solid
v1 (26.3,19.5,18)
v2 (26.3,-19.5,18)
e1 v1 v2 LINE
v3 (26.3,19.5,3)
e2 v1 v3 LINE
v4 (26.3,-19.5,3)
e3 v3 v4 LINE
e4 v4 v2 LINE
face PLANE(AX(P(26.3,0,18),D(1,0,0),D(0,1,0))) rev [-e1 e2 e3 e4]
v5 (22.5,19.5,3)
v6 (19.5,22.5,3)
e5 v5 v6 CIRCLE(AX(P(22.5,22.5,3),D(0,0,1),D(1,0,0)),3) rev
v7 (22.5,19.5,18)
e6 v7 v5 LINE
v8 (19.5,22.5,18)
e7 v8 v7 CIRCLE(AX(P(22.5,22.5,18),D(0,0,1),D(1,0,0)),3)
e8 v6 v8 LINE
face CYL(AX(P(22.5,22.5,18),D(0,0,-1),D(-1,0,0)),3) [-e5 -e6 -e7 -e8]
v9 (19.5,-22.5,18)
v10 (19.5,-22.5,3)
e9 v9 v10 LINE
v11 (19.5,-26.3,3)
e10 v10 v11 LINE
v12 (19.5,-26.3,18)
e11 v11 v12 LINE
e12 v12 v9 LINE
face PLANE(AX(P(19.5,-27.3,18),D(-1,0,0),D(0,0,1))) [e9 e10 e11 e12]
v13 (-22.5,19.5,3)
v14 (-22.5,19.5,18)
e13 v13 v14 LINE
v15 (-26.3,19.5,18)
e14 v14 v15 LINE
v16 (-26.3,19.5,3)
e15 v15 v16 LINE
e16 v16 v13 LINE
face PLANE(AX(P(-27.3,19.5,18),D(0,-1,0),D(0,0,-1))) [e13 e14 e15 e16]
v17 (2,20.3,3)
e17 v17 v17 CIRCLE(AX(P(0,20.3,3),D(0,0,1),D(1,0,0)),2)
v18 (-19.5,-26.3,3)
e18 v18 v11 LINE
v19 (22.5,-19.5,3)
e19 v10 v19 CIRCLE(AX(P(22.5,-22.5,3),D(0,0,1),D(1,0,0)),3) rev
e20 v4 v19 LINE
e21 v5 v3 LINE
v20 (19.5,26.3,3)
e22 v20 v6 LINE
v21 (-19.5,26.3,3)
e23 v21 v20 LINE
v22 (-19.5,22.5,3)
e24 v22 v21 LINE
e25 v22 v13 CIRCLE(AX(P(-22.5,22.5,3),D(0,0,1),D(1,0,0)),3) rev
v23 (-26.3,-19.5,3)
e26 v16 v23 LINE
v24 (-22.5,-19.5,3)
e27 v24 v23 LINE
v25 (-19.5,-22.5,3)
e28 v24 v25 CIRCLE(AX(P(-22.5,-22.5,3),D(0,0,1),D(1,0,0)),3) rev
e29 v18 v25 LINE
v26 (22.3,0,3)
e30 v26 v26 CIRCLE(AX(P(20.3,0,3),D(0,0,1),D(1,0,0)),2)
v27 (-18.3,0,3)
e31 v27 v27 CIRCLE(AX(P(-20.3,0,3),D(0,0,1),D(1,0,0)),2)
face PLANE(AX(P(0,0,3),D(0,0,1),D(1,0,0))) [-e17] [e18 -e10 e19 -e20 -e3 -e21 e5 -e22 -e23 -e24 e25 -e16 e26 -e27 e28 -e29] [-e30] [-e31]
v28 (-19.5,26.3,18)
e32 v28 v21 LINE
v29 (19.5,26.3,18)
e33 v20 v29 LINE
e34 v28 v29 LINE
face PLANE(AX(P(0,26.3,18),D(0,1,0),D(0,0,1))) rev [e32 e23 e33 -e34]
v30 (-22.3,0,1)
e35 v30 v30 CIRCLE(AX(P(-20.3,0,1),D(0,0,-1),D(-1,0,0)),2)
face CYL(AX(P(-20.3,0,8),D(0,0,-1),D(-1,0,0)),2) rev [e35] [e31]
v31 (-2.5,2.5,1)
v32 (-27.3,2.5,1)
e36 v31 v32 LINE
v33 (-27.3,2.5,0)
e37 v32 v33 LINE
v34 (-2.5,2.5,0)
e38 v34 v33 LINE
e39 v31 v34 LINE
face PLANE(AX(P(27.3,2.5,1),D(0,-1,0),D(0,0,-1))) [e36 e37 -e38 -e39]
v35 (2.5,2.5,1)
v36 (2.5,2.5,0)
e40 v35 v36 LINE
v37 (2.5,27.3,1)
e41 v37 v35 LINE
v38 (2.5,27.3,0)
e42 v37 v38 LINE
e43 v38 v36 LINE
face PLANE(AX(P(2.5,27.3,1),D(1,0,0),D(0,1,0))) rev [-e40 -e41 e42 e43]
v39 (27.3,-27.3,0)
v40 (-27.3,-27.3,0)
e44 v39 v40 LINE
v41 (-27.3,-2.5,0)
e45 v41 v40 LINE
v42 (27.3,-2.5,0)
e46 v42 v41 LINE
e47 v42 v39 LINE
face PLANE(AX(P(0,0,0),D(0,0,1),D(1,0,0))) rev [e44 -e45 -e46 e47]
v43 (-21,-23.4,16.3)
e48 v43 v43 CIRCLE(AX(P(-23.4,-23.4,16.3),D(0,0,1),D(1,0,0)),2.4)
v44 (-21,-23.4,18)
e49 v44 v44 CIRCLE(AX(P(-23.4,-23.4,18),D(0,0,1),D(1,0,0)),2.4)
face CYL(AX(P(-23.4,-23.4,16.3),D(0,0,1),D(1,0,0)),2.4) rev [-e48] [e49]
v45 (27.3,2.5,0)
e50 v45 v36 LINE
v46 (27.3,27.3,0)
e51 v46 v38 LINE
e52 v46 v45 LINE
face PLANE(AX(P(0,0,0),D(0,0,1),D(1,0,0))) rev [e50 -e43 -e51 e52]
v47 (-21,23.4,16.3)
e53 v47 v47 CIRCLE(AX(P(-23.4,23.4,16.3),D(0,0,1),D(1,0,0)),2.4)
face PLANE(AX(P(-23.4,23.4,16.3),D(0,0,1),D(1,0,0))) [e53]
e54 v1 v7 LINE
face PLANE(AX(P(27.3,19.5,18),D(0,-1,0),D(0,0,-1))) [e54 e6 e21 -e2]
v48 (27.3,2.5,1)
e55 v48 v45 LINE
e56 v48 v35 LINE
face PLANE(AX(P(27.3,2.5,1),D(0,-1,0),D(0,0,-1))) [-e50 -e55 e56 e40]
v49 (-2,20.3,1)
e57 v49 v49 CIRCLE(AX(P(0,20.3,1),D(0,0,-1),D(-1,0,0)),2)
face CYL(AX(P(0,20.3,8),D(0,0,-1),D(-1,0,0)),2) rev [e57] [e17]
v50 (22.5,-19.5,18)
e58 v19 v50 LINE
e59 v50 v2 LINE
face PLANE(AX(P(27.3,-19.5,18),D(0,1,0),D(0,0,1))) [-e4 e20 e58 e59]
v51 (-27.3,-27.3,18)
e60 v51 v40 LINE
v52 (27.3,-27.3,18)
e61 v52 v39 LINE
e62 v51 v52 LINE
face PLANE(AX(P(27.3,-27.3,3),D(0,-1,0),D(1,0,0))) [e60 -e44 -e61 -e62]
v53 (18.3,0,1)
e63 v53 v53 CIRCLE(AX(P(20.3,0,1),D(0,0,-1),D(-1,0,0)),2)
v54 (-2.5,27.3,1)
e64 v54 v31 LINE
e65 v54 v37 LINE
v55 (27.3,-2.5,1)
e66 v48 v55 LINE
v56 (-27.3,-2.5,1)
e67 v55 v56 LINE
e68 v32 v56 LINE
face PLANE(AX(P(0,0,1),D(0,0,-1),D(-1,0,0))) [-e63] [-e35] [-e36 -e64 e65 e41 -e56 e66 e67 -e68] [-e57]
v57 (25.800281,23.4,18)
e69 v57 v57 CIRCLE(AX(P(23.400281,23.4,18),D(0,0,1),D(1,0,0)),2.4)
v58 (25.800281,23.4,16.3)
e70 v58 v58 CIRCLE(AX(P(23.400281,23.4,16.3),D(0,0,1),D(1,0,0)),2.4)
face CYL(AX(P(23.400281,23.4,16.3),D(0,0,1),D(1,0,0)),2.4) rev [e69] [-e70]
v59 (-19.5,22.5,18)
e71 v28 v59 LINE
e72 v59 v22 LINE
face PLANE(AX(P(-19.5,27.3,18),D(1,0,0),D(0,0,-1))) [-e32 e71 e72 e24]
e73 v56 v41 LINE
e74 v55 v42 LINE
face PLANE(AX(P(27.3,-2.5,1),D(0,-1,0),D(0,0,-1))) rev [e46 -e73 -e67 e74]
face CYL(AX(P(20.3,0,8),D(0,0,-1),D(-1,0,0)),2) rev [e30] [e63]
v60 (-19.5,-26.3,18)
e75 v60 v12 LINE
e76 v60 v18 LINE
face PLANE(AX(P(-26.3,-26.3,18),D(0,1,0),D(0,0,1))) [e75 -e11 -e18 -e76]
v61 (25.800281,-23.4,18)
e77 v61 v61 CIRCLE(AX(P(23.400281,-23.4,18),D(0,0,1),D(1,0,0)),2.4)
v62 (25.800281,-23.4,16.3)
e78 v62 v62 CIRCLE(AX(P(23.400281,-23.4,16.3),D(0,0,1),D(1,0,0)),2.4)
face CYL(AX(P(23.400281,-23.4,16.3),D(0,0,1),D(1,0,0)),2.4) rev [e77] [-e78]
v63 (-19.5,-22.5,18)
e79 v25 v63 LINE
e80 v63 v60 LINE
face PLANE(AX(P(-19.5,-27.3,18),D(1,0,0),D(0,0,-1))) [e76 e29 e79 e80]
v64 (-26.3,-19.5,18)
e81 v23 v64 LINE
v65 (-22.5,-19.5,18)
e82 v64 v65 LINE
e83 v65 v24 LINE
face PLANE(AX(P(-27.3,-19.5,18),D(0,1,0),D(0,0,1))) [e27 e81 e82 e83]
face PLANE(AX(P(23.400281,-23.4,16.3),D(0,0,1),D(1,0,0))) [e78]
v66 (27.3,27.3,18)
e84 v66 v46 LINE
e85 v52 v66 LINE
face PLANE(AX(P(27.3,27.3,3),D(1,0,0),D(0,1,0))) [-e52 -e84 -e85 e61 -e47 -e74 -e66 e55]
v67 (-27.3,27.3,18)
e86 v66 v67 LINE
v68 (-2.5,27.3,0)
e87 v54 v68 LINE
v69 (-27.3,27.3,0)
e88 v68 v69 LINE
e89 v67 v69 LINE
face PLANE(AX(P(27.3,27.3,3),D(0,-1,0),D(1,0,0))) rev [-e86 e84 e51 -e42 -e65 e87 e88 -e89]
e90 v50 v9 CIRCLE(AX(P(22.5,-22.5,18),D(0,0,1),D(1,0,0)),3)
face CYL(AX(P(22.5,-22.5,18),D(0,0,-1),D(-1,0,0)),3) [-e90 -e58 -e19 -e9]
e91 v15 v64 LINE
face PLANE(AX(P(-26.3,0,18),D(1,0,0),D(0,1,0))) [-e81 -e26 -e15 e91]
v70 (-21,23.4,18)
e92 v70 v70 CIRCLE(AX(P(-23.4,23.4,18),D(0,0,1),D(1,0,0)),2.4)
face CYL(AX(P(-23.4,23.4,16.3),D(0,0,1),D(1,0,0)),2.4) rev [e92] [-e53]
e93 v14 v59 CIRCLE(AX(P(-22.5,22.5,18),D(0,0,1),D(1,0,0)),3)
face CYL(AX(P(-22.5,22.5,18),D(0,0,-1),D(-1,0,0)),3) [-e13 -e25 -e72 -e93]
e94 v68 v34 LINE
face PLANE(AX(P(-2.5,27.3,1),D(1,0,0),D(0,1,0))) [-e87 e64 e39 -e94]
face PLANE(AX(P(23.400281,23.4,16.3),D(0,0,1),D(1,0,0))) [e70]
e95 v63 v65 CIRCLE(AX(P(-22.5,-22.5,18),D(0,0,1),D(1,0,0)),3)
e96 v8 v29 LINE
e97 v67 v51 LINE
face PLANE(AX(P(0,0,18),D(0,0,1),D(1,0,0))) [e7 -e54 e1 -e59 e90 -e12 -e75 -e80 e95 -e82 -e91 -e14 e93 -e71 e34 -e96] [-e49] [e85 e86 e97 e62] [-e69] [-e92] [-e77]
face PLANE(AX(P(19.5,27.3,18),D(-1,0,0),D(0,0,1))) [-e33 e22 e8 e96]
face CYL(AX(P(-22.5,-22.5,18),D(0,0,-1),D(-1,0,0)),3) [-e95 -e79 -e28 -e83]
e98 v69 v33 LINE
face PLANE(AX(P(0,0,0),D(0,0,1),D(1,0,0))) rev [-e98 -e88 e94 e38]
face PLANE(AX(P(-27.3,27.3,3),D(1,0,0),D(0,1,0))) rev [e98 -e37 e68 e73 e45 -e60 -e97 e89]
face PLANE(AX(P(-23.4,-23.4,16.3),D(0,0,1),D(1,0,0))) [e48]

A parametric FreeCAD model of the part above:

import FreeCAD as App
import Part
import Sketcher
from FreeCAD import Vector


def edges_at(feature, points):
    """Names of the edges that pass closest to the given points."""
    edges = feature.Shape.Edges
    near = lambda p: min(range(len(edges)), key=lambda i: edges[i].distToShape(Part.Vertex(*p))[0])
    return sorted({f"Edge{near(p) + 1}" for p in points})


def add_polygon(sketch, points):
    """Adds a closed chain of lines whose ends are joined by coincident constraints."""
    first, n = sketch.GeometryCount, len(points)
    for a, b in zip(points, points[1:] + points[:1]):
        sketch.addGeometry(Part.LineSegment(App.Vector(*a, 0), App.Vector(*b, 0)), False)
    for i in range(n):
        sketch.addConstraint(Sketcher.Constraint("Coincident", first + i, 2, first + (i + 1) % n, 1))

doc = App.newDocument("Part")
params = doc.addObject("Spreadsheet::Sheet", "Params")
for row, (alias, value) in enumerate([
    ("sketch1_width", "54.6 mm"),
    ("pad1_length", "3 mm"),
    ("sketch2_width", "5 mm"),
    ("sketch2_width2", "24.8 mm"),
    ("pocket1_length", "1 mm"),
    ("sketch3_width", "54.6 mm"),
    ("sketch3_width2", "52.6 mm"),
    ("pad2_length", "15 mm"),
    ("sketch4_diameter", "4 mm"),
    ("pocket2_length", "7 mm"),
    ("sketch5_width", "7.8 mm"),
    ("pad3_length", "18 mm"),
    ("sketch6_diameter", "4.8 mm"),
    ("pocket3_length", "1.7 mm"),
    ("fillet_radius", "3 mm"),
], start=1):
    params.set(f"A{row}", alias)
    params.set(f"B{row}", "=" + value)
    params.setAlias(f"B{row}", alias)

body = doc.addObject("PartDesign::Body", "Body")

sketch1 = body.newObject("Sketcher::SketchObject", "Sketch")
sketch1.AttachmentSupport = (doc.getObject("XY_Plane"), [""])
sketch1.MapMode = "FlatFace"
add_polygon(sketch1, [(-27.3, 27.3), (-27.3, -27.3), (27.3, -27.3), (27.3, 27.3)])
sketch1.addConstraint([
    Sketcher.Constraint("Vertical", 0),
    Sketcher.Constraint("Horizontal", 1),
    Sketcher.Constraint("Vertical", 2),
    Sketcher.Constraint("Horizontal", 3),
    Sketcher.Constraint("Symmetric", 0, 2, 2, 2, -1, 1),
    Sketcher.Constraint("Equal", 3, 0),
    Sketcher.Constraint("DistanceX", 1, 1, 1, 2, 54.6),
])
sketch1.setExpression("Constraints[10]", "Params.sketch1_width")
pad1 = body.newObject("PartDesign::Pad", "Pad")
pad1.Profile = sketch1
pad1.setExpression("Length", "Params.pad1_length")

sketch2 = body.newObject("Sketcher::SketchObject", "Sketch001")
sketch2.AttachmentSupport = (doc.getObject("XY_Plane"), [""])
sketch2.MapMode = "FlatFace"
add_polygon(sketch2, [(2.5, 27.3), (2.5, 2.5), (27.3, 2.5), (27.3, -2.5), (-27.3, -2.5), (-27.3, 2.5), (-2.5, 2.5), (-2.5, 27.3)])
sketch2.addConstraint([
    Sketcher.Constraint("Vertical", 0),
    Sketcher.Constraint("Horizontal", 1),
    Sketcher.Constraint("Vertical", 2),
    Sketcher.Constraint("Horizontal", 3),
    Sketcher.Constraint("Vertical", 4),
    Sketcher.Constraint("Horizontal", 5),
    Sketcher.Constraint("Vertical", 6),
    Sketcher.Constraint("Horizontal", 7),
    Sketcher.Constraint("Symmetric", 1, 2, 3, 2, -1, 1),
    Sketcher.Constraint("Symmetric", 0, 2, 5, 2, -2),
    Sketcher.Constraint("Equal", 5, 0),
    Sketcher.Constraint("Equal", 7, 2),
    Sketcher.Constraint("DistanceX", 7, 1, 7, 2, 5.0),
    Sketcher.Constraint("DistanceX", 1, 1, 1, 2, 24.8),
])
sketch2.setExpression("Constraints[20]", "Params.sketch2_width")
sketch2.setExpression("Constraints[21]", "Params.sketch2_width2")
pocket1 = body.newObject("PartDesign::Pocket", "Pocket")
pocket1.Profile = sketch2
pocket1.setExpression("Length", "Params.pocket1_length")
pocket1.Reversed = True

sketch3 = body.newObject("Sketcher::SketchObject", "Sketch002")
sketch3.AttachmentSupport = (doc.getObject("XY_Plane"), [""])
sketch3.MapMode = "FlatFace"
sketch3.AttachmentOffset = App.Placement(Vector(0, 0, 3), App.Rotation())
add_polygon(sketch3, [(27.3, 27.3), (-27.3, 27.3), (-27.3, -27.3), (27.3, -27.3)])
add_polygon(sketch3, [(-26.3, -26.3), (-26.3, 26.3), (26.3, 26.3), (26.3, -26.3)])
sketch3.addConstraint([
    Sketcher.Constraint("Horizontal", 0),
    Sketcher.Constraint("Vertical", 1),
    Sketcher.Constraint("Horizontal", 2),
    Sketcher.Constraint("Vertical", 3),
    Sketcher.Constraint("Vertical", 4),
    Sketcher.Constraint("Horizontal", 5),
    Sketcher.Constraint("Vertical", 6),
    Sketcher.Constraint("Horizontal", 7),
    Sketcher.Constraint("Symmetric", 0, 2, 2, 2, -1, 1),
    Sketcher.Constraint("Symmetric", 4, 2, 6, 2, -1, 1),
    Sketcher.Constraint("Equal", 2, 1),
    Sketcher.Constraint("Equal", 7, 4),
    Sketcher.Constraint("DistanceX", 0, 2, 0, 1, 54.6),
    Sketcher.Constraint("DistanceX", 5, 1, 5, 2, 52.6),
])
sketch3.setExpression("Constraints[20]", "Params.sketch3_width")
sketch3.setExpression("Constraints[21]", "Params.sketch3_width2")
pad2 = body.newObject("PartDesign::Pad", "Pad001")
pad2.Profile = sketch3
pad2.setExpression("Length", "Params.pad2_length")

sketch4 = body.newObject("Sketcher::SketchObject", "Sketch003")
sketch4.AttachmentSupport = (doc.getObject("XY_Plane"), [""])
sketch4.MapMode = "FlatFace"
sketch4.AttachmentOffset = App.Placement(Vector(0, 0, 1), App.Rotation())
sketch4.addGeometry([
    Part.Circle(Vector(20.3, 0, 0), Vector(0, 0, 1), 2),
    Part.Circle(Vector(-20.3, 0, 0), Vector(0, 0, 1), 2),
    Part.Circle(Vector(0, 20.3, 0), Vector(0, 0, 1), 2),
], False)
sketch4.addConstraint([
    Sketcher.Constraint("Equal", 0, 1),
    Sketcher.Constraint("Equal", 1, 2),
    Sketcher.Constraint("Symmetric", 0, 3, 1, 3, -1, 1),
    Sketcher.Constraint("PointOnObject", 0, 3, -1),
    Sketcher.Constraint("PointOnObject", 2, 3, -2),
    Sketcher.Constraint("Diameter", 0, 4.0),
    Sketcher.Constraint("DistanceX", -1, 1, 0, 3, 20.3),
    Sketcher.Constraint("DistanceY", -1, 1, 2, 3, 20.3),
])
sketch4.setExpression("Constraints[5]", "Params.sketch4_diameter")
pocket2 = body.newObject("PartDesign::Pocket", "Pocket001")
pocket2.Profile = sketch4
pocket2.setExpression("Length", "Params.pocket2_length")
pocket2.Reversed = True

sketch5 = body.newObject("Sketcher::SketchObject", "Sketch004")
sketch5.AttachmentSupport = (doc.getObject("XY_Plane"), [""])
sketch5.MapMode = "FlatFace"
add_polygon(sketch5, [(27.3, 27.3), (27.3, 19.5), (19.5, 19.5), (19.5, 27.3)])
add_polygon(sketch5, [(-19.5, 27.3), (-19.5, 19.5), (-27.3, 19.5), (-27.3, 27.3)])
add_polygon(sketch5, [(27.3, -19.5), (27.3, -27.3), (19.5, -27.3), (19.5, -19.5)])
add_polygon(sketch5, [(-19.5, -19.5), (-19.5, -27.3), (-27.3, -27.3), (-27.3, -19.5)])
sketch5.addConstraint([
    Sketcher.Constraint("Vertical", 0),
    Sketcher.Constraint("Horizontal", 1),
    Sketcher.Constraint("Vertical", 2),
    Sketcher.Constraint("Horizontal", 3),
    Sketcher.Constraint("Vertical", 4),
    Sketcher.Constraint("Horizontal", 5),
    Sketcher.Constraint("Vertical", 6),
    Sketcher.Constraint("Horizontal", 7),
    Sketcher.Constraint("Vertical", 8),
    Sketcher.Constraint("Horizontal", 9),
    Sketcher.Constraint("Vertical", 10),
    Sketcher.Constraint("Horizontal", 11),
    Sketcher.Constraint("Vertical", 12),
    Sketcher.Constraint("Horizontal", 13),
    Sketcher.Constraint("Vertical", 14),
    Sketcher.Constraint("Horizontal", 15),
    Sketcher.Constraint("Symmetric", 6, 2, 8, 2, -1, 1),
    Sketcher.Constraint("Symmetric", 4, 2, 10, 2, -1, 1),
    Sketcher.Constraint("Symmetric", 2, 2, 12, 2, -1, 1),
    Sketcher.Constraint("Symmetric", 0, 2, 14, 2, -1, 1),
    Sketcher.Constraint("Symmetric", 1, 2, 4, 2, -2),
    Sketcher.Constraint("Symmetric", 3, 2, 6, 2, -2),
    Sketcher.Constraint("Equal", 15, 0),
    Sketcher.Constraint("DistanceX", 1, 2, 1, 1, 7.8),
    Sketcher.Constraint("DistanceX", 4, 2, 1, 2, 39.0),
    Sketcher.Constraint("DistanceY", 10, 2, 1, 2, 39.0),
])
sketch5.setExpression("Constraints[39]", "Params.sketch5_width")
pad3 = body.newObject("PartDesign::Pad", "Pad002")
pad3.Profile = sketch5
pad3.setExpression("Length", "Params.pad3_length")

sketch6 = body.newObject("Sketcher::SketchObject", "Sketch005")
sketch6.AttachmentSupport = (doc.getObject("XY_Plane"), [""])
sketch6.MapMode = "FlatFace"
sketch6.AttachmentOffset = App.Placement(Vector(0, 0, 18), App.Rotation())
sketch6.addGeometry([
    Part.Circle(Vector(-23.4, -23.4, 0), Vector(0, 0, 1), 2.4),
    Part.Circle(Vector(-23.4, 23.4, 0), Vector(0, 0, 1), 2.4),
    Part.Circle(Vector(23.400281, 23.4, 0), Vector(0, 0, 1), 2.4),
    Part.Circle(Vector(23.400281, -23.4, 0), Vector(0, 0, 1), 2.4),
], False)
sketch6.addConstraint([
    Sketcher.Constraint("Equal", 0, 1),
    Sketcher.Constraint("Equal", 1, 2),
    Sketcher.Constraint("Equal", 2, 3),
    Sketcher.Constraint("Symmetric", 0, 3, 1, 3, -1),
    Sketcher.Constraint("Symmetric", 2, 3, 3, 3, -1),
    Sketcher.Constraint("Horizontal", 1, 3, 2, 3),
    Sketcher.Constraint("Diameter", 0, 4.8),
    Sketcher.Constraint("DistanceX", 0, 3, -1, 1, 23.4),
    Sketcher.Constraint("DistanceY", 0, 3, -1, 1, 23.4),
    Sketcher.Constraint("DistanceX", -1, 1, 2, 3, 23.400281),
])
sketch6.setExpression("Constraints[6]", "Params.sketch6_diameter")
pocket3 = body.newObject("PartDesign::Pocket", "Pocket002")
pocket3.Profile = sketch6
pocket3.setExpression("Length", "Params.pocket3_length")
doc.recompute()

fillet = body.newObject("PartDesign::Fillet", "Fillet")
fillet.Base = (pocket3, edges_at(pocket3, [
    (-19.5, 19.5, 10.5),
    (19.5, -19.5, 10.5),
    (-19.5, -19.5, 10.5),
    (19.5, 19.5, 10.5),
]))
fillet.setExpression("Radius", "Params.fillet_radius")

doc.recompute()
